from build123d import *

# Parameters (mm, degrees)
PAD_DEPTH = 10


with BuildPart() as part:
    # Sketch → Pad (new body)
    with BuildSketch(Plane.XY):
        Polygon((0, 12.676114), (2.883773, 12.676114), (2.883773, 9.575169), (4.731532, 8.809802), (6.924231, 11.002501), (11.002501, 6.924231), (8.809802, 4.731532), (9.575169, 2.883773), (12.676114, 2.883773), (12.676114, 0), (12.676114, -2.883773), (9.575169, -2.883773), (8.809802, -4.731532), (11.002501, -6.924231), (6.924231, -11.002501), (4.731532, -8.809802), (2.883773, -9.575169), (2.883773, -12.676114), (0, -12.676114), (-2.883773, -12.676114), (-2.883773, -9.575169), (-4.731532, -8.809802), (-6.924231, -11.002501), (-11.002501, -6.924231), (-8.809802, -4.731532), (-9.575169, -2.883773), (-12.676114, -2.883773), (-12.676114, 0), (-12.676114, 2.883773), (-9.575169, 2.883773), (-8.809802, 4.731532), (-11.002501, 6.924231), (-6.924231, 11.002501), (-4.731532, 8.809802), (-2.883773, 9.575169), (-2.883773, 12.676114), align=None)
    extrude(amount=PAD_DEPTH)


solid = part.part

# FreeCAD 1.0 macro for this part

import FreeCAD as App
import Part
import Sketcher
from FreeCAD import Vector
Q = App.Units.Quantity

doc = App.newDocument("Part")
params = doc.addObject("Spreadsheet::Sheet", "Params")
for row, (alias, value) in enumerate([
    ("sketch1_length", "2 mm"),
    ("pad1_length", "10 mm"),
], start=1):
    params.set(f"A{row}", alias)
    params.set(f"B{row}", "=" + value)
    params.setAlias(f"B{row}", alias)

body = doc.addObject("PartDesign::Body", "Body")

sketch1 = body.newObject("Sketcher::SketchObject", "Sketch")
sketch1.AttachmentSupport = (doc.getObject("XY_Plane"), [""])
sketch1.MapMode = "FlatFace"
sketch1.addGeometry([
    Part.LineSegment(Vector(2.9, 12.7, 0), Vector(-2.9, 12.7, 0)),
    Part.LineSegment(Vector(-2.9, 12.7, 0), Vector(-2.9, 9.6, 0)),
    Part.LineSegment(Vector(-2.9, 9.6, 0), Vector(-4.7, 8.8, 0)),
    Part.LineSegment(Vector(-4.7, 8.8, 0), Vector(-6.9, 11, 0)),
    Part.LineSegment(Vector(-6.9, 11, 0), Vector(-11, 6.9, 0)),
    Part.LineSegment(Vector(-11, 6.9, 0), Vector(-8.8, 4.7, 0)),
    Part.LineSegment(Vector(-8.8, 4.7, 0), Vector(-9.6, 2.9, 0)),
    Part.LineSegment(Vector(-9.6, 2.9, 0), Vector(-12.7, 2.9, 0)),
    Part.LineSegment(Vector(-12.7, 2.9, 0), Vector(-12.7, -2.9, 0)),
    Part.LineSegment(Vector(-12.7, -2.9, 0), Vector(-9.6, -2.9, 0)),
    Part.LineSegment(Vector(-9.6, -2.9, 0), Vector(-8.8, -4.7, 0)),
    Part.LineSegment(Vector(-8.8, -4.7, 0), Vector(-11, -6.9, 0)),
    Part.LineSegment(Vector(-11, -6.9, 0), Vector(-6.9, -11, 0)),
    Part.LineSegment(Vector(-6.9, -11, 0), Vector(-4.7, -8.8, 0)),
    Part.LineSegment(Vector(-4.7, -8.8, 0), Vector(-2.9, -9.6, 0)),
    Part.LineSegment(Vector(-2.9, -9.6, 0), Vector(-2.9, -12.7, 0)),
    Part.LineSegment(Vector(-2.9, -12.7, 0), Vector(2.9, -12.7, 0)),
    Part.LineSegment(Vector(2.9, -12.7, 0), Vector(2.9, -9.6, 0)),
    Part.LineSegment(Vector(2.9, -9.6, 0), Vector(4.7, -8.8, 0)),
    Part.LineSegment(Vector(4.7, -8.8, 0), Vector(6.9, -11, 0)),
    Part.LineSegment(Vector(6.9, -11, 0), Vector(11, -6.9, 0)),
    Part.LineSegment(Vector(11, -6.9, 0), Vector(8.8, -4.7, 0)),
    Part.LineSegment(Vector(8.8, -4.7, 0), Vector(9.6, -2.9, 0)),
    Part.LineSegment(Vector(9.6, -2.9, 0), Vector(12.7, -2.9, 0)),
    Part.LineSegment(Vector(12.7, -2.9, 0), Vector(12.7, 2.9, 0)),
    Part.LineSegment(Vector(12.7, 2.9, 0), Vector(9.6, 2.9, 0)),
    Part.LineSegment(Vector(9.6, 2.9, 0), Vector(8.8, 4.7, 0)),
    Part.LineSegment(Vector(8.8, 4.7, 0), Vector(11, 6.9, 0)),
    Part.LineSegment(Vector(11, 6.9, 0), Vector(6.9, 11, 0)),
    Part.LineSegment(Vector(6.9, 11, 0), Vector(4.7, 8.8, 0)),
    Part.LineSegment(Vector(4.7, 8.8, 0), Vector(2.9, 9.6, 0)),
    Part.LineSegment(Vector(2.9, 9.6, 0), Vector(2.9, 12.7, 0)),
], False)
sketch1.addConstraint([
    Sketcher.Constraint("Coincident", 0, 2, 1, 1),
    Sketcher.Constraint("Coincident", 1, 2, 2, 1),
    Sketcher.Constraint("Coincident", 2, 2, 3, 1),
    Sketcher.Constraint("Coincident", 3, 2, 4, 1),
    Sketcher.Constraint("Coincident", 4, 2, 5, 1),
    Sketcher.Constraint("Coincident", 5, 2, 6, 1),
    Sketcher.Constraint("Coincident", 6, 2, 7, 1),
    Sketcher.Constraint("Coincident", 7, 2, 8, 1),
    Sketcher.Constraint("Coincident", 8, 2, 9, 1),
    Sketcher.Constraint("Coincident", 9, 2, 10, 1),
    Sketcher.Constraint("Coincident", 10, 2, 11, 1),
    Sketcher.Constraint("Coincident", 11, 2, 12, 1),
    Sketcher.Constraint("Coincident", 12, 2, 13, 1),
    Sketcher.Constraint("Coincident", 13, 2, 14, 1),
    Sketcher.Constraint("Coincident", 14, 2, 15, 1),
    Sketcher.Constraint("Coincident", 15, 2, 16, 1),
    Sketcher.Constraint("Coincident", 16, 2, 17, 1),
    Sketcher.Constraint("Coincident", 17, 2, 18, 1),
    Sketcher.Constraint("Coincident", 18, 2, 19, 1),
    Sketcher.Constraint("Coincident", 19, 2, 20, 1),
    Sketcher.Constraint("Coincident", 20, 2, 21, 1),
    Sketcher.Constraint("Coincident", 21, 2, 22, 1),
    Sketcher.Constraint("Coincident", 22, 2, 23, 1),
    Sketcher.Constraint("Coincident", 23, 2, 24, 1),
    Sketcher.Constraint("Coincident", 24, 2, 25, 1),
    Sketcher.Constraint("Coincident", 25, 2, 26, 1),
    Sketcher.Constraint("Coincident", 26, 2, 27, 1),
    Sketcher.Constraint("Coincident", 27, 2, 28, 1),
    Sketcher.Constraint("Coincident", 28, 2, 29, 1),
    Sketcher.Constraint("Coincident", 29, 2, 30, 1),
    Sketcher.Constraint("Coincident", 30, 2, 31, 1),
    Sketcher.Constraint("Coincident", 31, 2, 0, 1),
    Sketcher.Constraint("Horizontal", 0),
    Sketcher.Constraint("Vertical", 1),
    Sketcher.Constraint("Horizontal", 7),
    Sketcher.Constraint("Vertical", 8),
    Sketcher.Constraint("Horizontal", 9),
    Sketcher.Constraint("Vertical", 15),
    Sketcher.Constraint("Horizontal", 16),
    Sketcher.Constraint("Vertical", 17),
    Sketcher.Constraint("Horizontal", 23),
    Sketcher.Constraint("Vertical", 24),
    Sketcher.Constraint("Horizontal", 25),
    Sketcher.Constraint("Vertical", 31),
    Sketcher.Constraint("Symmetric", 0, 2, 16, 2, -1, 1),
    Sketcher.Constraint("Symmetric", 2, 2, 18, 2, -1, 1),
    Sketcher.Constraint("Symmetric", 3, 2, 19, 2, -1, 1),
    Sketcher.Constraint("Symmetric", 4, 2, 20, 2, -1, 1),
    Sketcher.Constraint("Symmetric", 5, 2, 21, 2, -1, 1),
    Sketcher.Constraint("Symmetric", 6, 2, 22, 2, -1, 1),
    Sketcher.Constraint("Symmetric", 8, 2, 24, 2, -1, 1),
    Sketcher.Constraint("Symmetric", 10, 2, 26, 2, -1, 1),
    Sketcher.Constraint("Symmetric", 11, 2, 27, 2, -1, 1),
    Sketcher.Constraint("Symmetric", 12, 2, 28, 2, -1, 1),
    Sketcher.Constraint("Symmetric", 13, 2, 29, 2, -1, 1),
    Sketcher.Constraint("Symmetric", 14, 2, 30, 2, -1, 1),
    Sketcher.Constraint("Symmetric", 14, 2, 17, 2, -2),
    Sketcher.Constraint("Symmetric", 13, 2, 18, 2, -2),
    Sketcher.Constraint("Symmetric", 12, 2, 19, 2, -2),
    Sketcher.Constraint("Symmetric", 11, 2, 20, 2, -2),
    Sketcher.Constraint("Symmetric", 10, 2, 21, 2, -2),
    Sketcher.Constraint("Symmetric", 9, 2, 22, 2, -2),
    Sketcher.Constraint("Perpendicular", 3, 4),
    Sketcher.Constraint("Perpendicular", 4, 5),
    Sketcher.Constraint("Perpendicular", 2, 10),
    Sketcher.Constraint("Perpendicular", 5, 11),
    Sketcher.Constraint("Perpendicular", 6, 14),
    Sketcher.Constraint("Perpendicular", 18, 26),
    Sketcher.Constraint("Equal", 25, 1),
    Sketcher.Constraint("Equal", 16, 8),
    Sketcher.Constraint("Equal", 3, 5),
    Sketcher.Constraint("Equal", 2, 6),
    Sketcher.Constraint("Distance", 2, 2.0),
    Sketcher.Constraint("Angle", 2, Q("-157.499996 deg")),
    Sketcher.Constraint("DistanceY", -1, 1, 3, 2, 11.002501),
    Sketcher.Constraint("DistanceX", 3, 2, 2, 2, 2.192699),
    Sketcher.Constraint("DistanceX", 0, 2, 0, 1, 5.767546),
    Sketcher.Constraint("DistanceX", 7, 2, 7, 1, 3.100945),
])
sketch1.setExpression("Constraints[72]", "Params.sketch1_length")
pad1 = body.newObject("PartDesign::Pad", "Pad")
pad1.Profile = sketch1
pad1.setExpression("Length", "Params.pad1_length")

doc.recompute()
